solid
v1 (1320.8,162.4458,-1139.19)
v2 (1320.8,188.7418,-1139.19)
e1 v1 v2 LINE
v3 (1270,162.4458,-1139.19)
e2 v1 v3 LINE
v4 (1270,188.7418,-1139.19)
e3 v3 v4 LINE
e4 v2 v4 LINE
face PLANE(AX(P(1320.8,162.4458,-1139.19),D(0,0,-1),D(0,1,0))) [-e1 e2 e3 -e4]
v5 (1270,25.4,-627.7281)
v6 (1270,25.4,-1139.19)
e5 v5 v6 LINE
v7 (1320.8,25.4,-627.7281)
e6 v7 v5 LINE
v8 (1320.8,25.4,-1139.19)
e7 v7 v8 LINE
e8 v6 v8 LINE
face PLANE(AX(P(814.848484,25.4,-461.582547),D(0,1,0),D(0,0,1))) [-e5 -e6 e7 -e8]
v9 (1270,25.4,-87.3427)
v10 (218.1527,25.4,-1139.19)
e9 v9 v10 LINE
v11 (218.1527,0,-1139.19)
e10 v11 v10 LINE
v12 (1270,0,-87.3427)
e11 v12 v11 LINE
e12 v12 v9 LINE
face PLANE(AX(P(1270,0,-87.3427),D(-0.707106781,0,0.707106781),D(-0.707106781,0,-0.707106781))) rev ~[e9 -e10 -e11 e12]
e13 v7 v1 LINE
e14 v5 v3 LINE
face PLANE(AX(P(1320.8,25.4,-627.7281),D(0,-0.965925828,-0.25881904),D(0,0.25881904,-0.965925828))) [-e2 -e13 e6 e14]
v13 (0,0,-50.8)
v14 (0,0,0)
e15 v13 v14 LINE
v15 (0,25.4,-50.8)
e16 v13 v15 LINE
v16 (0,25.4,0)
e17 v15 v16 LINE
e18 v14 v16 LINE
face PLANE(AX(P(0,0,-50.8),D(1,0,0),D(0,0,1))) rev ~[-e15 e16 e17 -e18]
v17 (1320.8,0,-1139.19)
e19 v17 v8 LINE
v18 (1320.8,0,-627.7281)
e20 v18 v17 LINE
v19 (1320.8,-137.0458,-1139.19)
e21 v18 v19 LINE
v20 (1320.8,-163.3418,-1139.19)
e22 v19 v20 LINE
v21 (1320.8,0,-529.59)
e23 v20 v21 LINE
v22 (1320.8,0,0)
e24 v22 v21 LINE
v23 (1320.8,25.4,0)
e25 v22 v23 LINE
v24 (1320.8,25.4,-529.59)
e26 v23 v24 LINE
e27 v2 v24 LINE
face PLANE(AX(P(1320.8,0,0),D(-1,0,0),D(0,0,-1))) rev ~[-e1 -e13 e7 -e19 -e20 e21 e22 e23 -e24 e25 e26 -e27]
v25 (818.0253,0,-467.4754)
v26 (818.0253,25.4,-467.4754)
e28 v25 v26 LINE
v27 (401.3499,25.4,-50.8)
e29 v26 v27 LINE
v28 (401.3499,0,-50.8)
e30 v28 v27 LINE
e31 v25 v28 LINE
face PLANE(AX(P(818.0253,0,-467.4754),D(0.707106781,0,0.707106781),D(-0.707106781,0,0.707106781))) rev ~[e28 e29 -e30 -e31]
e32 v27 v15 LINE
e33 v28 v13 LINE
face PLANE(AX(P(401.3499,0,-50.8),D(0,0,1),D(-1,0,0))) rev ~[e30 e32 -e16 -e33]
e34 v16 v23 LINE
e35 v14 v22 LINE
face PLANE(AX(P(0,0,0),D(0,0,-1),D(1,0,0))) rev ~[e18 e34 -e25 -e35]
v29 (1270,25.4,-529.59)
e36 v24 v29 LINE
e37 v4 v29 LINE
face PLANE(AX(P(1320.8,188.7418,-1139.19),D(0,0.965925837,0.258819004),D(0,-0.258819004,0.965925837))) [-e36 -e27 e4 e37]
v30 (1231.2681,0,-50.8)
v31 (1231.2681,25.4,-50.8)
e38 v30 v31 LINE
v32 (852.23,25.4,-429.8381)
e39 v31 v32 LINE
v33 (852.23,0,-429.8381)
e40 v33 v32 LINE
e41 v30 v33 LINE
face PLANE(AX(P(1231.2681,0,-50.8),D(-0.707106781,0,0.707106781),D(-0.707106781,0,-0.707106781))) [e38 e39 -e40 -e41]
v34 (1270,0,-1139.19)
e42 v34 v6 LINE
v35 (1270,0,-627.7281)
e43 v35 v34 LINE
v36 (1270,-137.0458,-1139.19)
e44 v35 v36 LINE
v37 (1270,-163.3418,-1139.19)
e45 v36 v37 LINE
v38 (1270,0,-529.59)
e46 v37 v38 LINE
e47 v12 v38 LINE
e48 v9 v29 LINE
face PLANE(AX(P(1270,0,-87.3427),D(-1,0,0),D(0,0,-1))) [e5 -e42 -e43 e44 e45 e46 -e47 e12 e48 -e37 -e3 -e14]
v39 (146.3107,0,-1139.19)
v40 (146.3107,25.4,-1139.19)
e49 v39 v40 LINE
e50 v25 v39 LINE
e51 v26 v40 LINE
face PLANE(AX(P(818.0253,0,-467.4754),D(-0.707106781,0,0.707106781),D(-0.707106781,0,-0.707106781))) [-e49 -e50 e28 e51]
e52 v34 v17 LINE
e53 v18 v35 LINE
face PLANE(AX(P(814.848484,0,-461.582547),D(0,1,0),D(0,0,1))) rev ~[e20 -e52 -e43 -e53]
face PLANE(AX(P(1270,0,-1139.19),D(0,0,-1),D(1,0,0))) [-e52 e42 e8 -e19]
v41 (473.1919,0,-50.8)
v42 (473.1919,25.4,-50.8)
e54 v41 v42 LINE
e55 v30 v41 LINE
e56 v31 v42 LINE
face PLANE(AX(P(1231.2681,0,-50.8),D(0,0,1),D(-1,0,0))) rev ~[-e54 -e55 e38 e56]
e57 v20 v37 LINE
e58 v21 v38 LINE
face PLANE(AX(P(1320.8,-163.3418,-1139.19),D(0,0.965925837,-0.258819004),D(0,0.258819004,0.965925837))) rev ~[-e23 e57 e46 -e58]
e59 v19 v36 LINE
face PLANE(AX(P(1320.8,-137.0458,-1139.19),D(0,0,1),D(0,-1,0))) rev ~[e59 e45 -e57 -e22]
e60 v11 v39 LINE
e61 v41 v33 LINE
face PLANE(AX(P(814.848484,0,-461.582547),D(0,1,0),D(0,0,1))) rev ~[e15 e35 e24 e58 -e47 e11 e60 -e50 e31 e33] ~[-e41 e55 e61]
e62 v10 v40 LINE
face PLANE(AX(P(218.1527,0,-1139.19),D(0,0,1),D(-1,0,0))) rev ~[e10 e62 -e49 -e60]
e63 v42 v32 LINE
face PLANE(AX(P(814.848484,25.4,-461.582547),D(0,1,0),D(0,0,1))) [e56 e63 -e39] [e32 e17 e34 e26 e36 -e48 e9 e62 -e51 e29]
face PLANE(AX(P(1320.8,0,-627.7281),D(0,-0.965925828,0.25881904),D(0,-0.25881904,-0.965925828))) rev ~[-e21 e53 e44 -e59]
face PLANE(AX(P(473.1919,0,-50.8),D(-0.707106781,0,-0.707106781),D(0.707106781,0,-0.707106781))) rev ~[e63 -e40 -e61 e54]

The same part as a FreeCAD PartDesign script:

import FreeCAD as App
import Part
import Sketcher

V = App.Vector
Q = App.Units.Quantity


def add_polygon(sketch, points):
    """Adds a closed chain of lines whose ends are joined by coincident constraints."""
    first, n = sketch.GeometryCount, len(points)
    for a, b in zip(points, points[1:] + points[:1]):
        sketch.addGeometry(Part.LineSegment(App.Vector(*a, 0), App.Vector(*b, 0)), False)
    for i in range(n):
        sketch.addConstraint(Sketcher.Constraint("Coincident", first + i, 2, first + (i + 1) % n, 1))

doc = App.newDocument("Part")
body = doc.addObject("PartDesign::Body", "Body")

# Sketch on XZ plane
sketch1 = body.newObject("Sketcher::SketchObject", "Sketch")
sketch1.AttachmentSupport = (doc.getObject("XZ_Plane"), [""])
sketch1.MapMode = "FlatFace"
add_polygon(sketch1, [(1321, 0), (0, 0), (0, -51), (401, -51), (818, -467), (146, -1139), (218, -1139), (1270, -87), (1270, -1139), (1321, -1139)])  # lines 0-9
add_polygon(sketch1, [(473, -51), (1231, -51), (852, -430)])  # lines 10-12
sketch1.addConstraint(Sketcher.Constraint("Horizontal", 0))
sketch1.addConstraint(Sketcher.Constraint("Vertical", 1))
sketch1.addConstraint(Sketcher.Constraint("Horizontal", 2))
sketch1.addConstraint(Sketcher.Constraint("Horizontal", 5))
sketch1.addConstraint(Sketcher.Constraint("Vertical", 7))
sketch1.addConstraint(Sketcher.Constraint("Horizontal", 8))
sketch1.addConstraint(Sketcher.Constraint("Vertical", 9))
sketch1.addConstraint(Sketcher.Constraint("Horizontal", 10))
sketch1.addConstraint(Sketcher.Constraint("Coincident", 0, 2, -1, 1))
sketch1.addConstraint(Sketcher.Constraint("Perpendicular", 3, 4))
sketch1.addConstraint(Sketcher.Constraint("Parallel", 4, 6))
sketch1.addConstraint(Sketcher.Constraint("Parallel", 6, 11))
sketch1.addConstraint(Sketcher.Constraint("Perpendicular", 11, 12))
sketch1.addConstraint(Sketcher.Constraint("Horizontal", 5, 2, 7, 2))
sketch1.addConstraint(Sketcher.Constraint("Horizontal", 2, 2, 10, 2))
sketch1.addConstraint(Sketcher.Constraint("Equal", 8, 1))
sketch1.addConstraint(Sketcher.Constraint("Equal", 11, 12))
sketch1.addConstraint(Sketcher.Constraint("DistanceX", 0, 2, 0, 1, Q("52 in")))
sketch1.addConstraint(Sketcher.Constraint("DistanceX", 8, 1, 8, 2, Q("2 in")))
sketch1.addConstraint(Sketcher.Constraint("DistanceY", 9, 1, 9, 2, Q("44.85 in")))
sketch1.addConstraint(Sketcher.Constraint("DistanceY", 7, 2, 7, 1, Q("41.4113 in")))
sketch1.addConstraint(Sketcher.Constraint("DistanceX", 2, 1, 2, 2, 401.35))
sketch1.addConstraint(Sketcher.Constraint("DistanceX", 5, 1, 5, 2, 71.842))
sketch1.addConstraint(Sketcher.Constraint("DistanceX", 10, 1, 10, 2, 758.0762))
sketch1.addConstraint(Sketcher.Constraint("DistanceX", -1, 1, 12, 2, Q("18.6296 in")))
pad1 = body.newObject("PartDesign::Pad", "Pad")
pad1.Profile = sketch1
pad1.Length = Q("1 in")
pad1.Reversed = True

# Sketch on YZ plane
sketch2 = body.newObject("Sketcher::SketchObject", "Sketch001")
sketch2.AttachmentSupport = (doc.getObject("YZ_Plane"), [""])
sketch2.MapMode = "FlatFace"
sketch2.AttachmentOffset = App.Placement(V(0, 0, 52 * 25.4), App.Rotation())
add_polygon(sketch2, [(-137, -1139), (0, -628), (0, -530), (-163, -1139)])  # lines 0-3
add_polygon(sketch2, [(25, -530), (25, -628), (162, -1139), (189, -1139)])  # lines 4-7
sketch2.addConstraint(Sketcher.Constraint("Vertical", 1))
sketch2.addConstraint(Sketcher.Constraint("Horizontal", 3))
sketch2.addConstraint(Sketcher.Constraint("Vertical", 4))
sketch2.addConstraint(Sketcher.Constraint("Horizontal", 6))
sketch2.addConstraint(Sketcher.Constraint("PointOnObject", 0, 2, -2))
sketch2.addConstraint(Sketcher.Constraint("Parallel", 0, 2))
sketch2.addConstraint(Sketcher.Constraint("Parallel", 5, 7))
sketch2.addConstraint(Sketcher.Constraint("Horizontal", 0, 2, 4, 2))
sketch2.addConstraint(Sketcher.Constraint("Horizontal", 3, 2, 5, 2))
sketch2.addConstraint(Sketcher.Constraint("Horizontal", 1, 2, 7, 2))
sketch2.addConstraint(Sketcher.Constraint("Equal", 3, 6))
sketch2.addConstraint(Sketcher.Constraint("DistanceX", -1, 1, 4, 2, Q("1 in")))
sketch2.addConstraint(Sketcher.Constraint("Angle", 0, Q("75 deg")))
sketch2.addConstraint(Sketcher.Constraint("DistanceY", 2, 2, 1, 2, Q("24 in")))
sketch2.addConstraint(Sketcher.Constraint("DistanceY", 1, 2, -1, 1, Q("20.85 in")))
sketch2.addConstraint(Sketcher.Constraint("DistanceY", 1, 1, 1, 2, Q("3.8637 in")))
pad2 = body.newObject("PartDesign::Pad", "Pad001")
pad2.Profile = sketch2
pad2.Length = Q("2 in")
pad2.Reversed = True

doc.recompute()
